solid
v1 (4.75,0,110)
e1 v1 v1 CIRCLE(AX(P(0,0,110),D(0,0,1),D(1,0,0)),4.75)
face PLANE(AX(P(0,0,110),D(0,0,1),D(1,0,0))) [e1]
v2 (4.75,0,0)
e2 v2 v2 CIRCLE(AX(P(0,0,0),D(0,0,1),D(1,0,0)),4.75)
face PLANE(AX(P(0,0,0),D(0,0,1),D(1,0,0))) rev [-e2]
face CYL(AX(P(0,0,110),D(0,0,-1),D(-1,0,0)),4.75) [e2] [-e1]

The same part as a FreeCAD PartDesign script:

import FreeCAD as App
import Part
import Sketcher

V = App.Vector
Q = App.Units.Quantity

doc = App.newDocument("Part")
params = doc.addObject("Spreadsheet::Sheet", "Params")
for row, (alias, value) in enumerate([
    ("sketch1_diameter", "9.5 mm"),
    ("pad1_length", "110 mm"),
], start=1):
    params.set(f"A{row}", alias)
    params.set(f"B{row}", "=" + value)
    params.setAlias(f"B{row}", alias)

body = doc.addObject("PartDesign::Body", "Body")

# Sketch on XY plane
sketch1 = body.newObject("Sketcher::SketchObject", "Sketch")
sketch1.AttachmentSupport = (doc.getObject("XY_Plane"), [""])
sketch1.MapMode = "FlatFace"
sketch1.addGeometry(Part.Circle(V(0, 0, 0), V(0, 0, 1), 4.8), False)
sketch1.addConstraint(Sketcher.Constraint("Coincident", 0, 3, -1, 1))
sketch1.addConstraint(Sketcher.Constraint("Diameter", 0, Q("9.5 mm")))
sketch1.setExpression("Constraints[1]", "Params.sketch1_diameter")
pad1 = body.newObject("PartDesign::Pad", "Pad")
pad1.Profile = sketch1
pad1.setExpression("Length", "Params.pad1_length")

doc.recompute()
